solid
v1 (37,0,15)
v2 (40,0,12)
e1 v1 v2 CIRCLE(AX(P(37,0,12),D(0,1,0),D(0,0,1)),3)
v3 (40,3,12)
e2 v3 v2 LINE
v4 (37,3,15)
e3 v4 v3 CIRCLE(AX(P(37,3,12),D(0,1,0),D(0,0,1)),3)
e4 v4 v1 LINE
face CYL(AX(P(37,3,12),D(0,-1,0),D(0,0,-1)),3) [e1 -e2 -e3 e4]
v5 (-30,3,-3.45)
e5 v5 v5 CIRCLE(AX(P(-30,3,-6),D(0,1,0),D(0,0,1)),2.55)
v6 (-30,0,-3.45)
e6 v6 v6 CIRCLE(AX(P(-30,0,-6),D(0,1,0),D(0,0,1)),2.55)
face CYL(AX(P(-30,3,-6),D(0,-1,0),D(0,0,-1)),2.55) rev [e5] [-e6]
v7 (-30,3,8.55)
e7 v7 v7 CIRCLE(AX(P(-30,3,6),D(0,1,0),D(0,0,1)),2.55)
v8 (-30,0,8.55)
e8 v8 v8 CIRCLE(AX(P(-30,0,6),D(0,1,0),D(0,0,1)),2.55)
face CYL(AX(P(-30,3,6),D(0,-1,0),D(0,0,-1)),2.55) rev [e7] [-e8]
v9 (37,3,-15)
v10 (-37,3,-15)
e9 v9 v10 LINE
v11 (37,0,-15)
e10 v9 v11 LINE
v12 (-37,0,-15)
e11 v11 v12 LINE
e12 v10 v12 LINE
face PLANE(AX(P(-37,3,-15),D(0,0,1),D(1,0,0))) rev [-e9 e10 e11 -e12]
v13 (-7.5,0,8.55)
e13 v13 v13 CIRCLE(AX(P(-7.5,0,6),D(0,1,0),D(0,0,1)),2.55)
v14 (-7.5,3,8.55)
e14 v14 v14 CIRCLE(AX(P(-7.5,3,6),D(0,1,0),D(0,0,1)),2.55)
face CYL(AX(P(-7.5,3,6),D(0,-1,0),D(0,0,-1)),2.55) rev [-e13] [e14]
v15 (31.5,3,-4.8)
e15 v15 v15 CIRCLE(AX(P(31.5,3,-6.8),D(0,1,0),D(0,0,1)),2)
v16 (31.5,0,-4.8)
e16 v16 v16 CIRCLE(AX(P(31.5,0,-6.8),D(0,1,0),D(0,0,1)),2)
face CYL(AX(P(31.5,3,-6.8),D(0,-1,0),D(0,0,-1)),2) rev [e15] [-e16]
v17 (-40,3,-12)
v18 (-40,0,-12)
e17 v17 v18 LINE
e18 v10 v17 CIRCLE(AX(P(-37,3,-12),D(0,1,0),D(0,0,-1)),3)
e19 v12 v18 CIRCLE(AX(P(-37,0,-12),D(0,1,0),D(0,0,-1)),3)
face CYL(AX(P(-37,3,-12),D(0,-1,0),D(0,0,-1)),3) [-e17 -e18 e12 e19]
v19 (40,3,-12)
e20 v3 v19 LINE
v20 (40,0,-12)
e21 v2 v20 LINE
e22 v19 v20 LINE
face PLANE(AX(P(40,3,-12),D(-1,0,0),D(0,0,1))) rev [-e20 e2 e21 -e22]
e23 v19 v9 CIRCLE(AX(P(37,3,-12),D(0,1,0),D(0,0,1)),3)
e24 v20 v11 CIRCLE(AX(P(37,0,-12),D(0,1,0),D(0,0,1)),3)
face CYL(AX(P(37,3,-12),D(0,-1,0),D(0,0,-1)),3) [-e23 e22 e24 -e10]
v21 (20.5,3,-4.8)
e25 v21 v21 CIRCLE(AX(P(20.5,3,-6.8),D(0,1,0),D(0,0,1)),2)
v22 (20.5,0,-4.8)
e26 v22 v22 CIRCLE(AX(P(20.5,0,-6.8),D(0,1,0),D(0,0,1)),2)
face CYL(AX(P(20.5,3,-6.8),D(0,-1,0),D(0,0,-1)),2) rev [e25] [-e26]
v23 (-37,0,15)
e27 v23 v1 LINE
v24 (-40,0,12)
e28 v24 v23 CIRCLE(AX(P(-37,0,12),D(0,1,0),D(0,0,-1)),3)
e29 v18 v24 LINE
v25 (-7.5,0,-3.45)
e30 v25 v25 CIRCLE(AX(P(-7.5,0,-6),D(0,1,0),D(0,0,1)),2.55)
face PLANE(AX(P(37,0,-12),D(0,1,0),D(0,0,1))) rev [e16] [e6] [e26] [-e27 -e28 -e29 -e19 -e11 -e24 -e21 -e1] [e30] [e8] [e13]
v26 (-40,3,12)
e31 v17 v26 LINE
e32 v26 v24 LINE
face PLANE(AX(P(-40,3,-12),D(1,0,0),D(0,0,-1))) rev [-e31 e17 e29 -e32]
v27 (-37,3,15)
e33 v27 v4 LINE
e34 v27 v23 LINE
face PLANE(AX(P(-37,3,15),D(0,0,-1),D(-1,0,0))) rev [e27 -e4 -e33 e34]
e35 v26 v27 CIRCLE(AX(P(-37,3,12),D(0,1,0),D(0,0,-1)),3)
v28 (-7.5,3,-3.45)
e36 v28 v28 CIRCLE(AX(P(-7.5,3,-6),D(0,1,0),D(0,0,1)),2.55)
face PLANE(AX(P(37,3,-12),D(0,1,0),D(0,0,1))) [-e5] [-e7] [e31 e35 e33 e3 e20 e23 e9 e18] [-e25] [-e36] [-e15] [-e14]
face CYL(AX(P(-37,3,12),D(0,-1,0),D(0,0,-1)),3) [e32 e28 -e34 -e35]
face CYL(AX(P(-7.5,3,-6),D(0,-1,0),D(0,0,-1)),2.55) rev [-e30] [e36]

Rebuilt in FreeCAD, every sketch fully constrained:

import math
import FreeCAD as App
import Part
import Sketcher

V = App.Vector
Q = App.Units.Quantity

doc = App.newDocument("Part")
body = doc.addObject("PartDesign::Body", "Body")

# Sketch on XZ plane
sketch1 = body.newObject("Sketcher::SketchObject", "Sketch")
sketch1.AttachmentSupport = (doc.getObject("XZ_Plane"), [""])
sketch1.MapMode = "FlatFace"
sketch1.addGeometry([
    Part.LineSegment(V(37, -15, 0), V(-37, -15, 0)),  # 0
    Part.ArcOfCircle(Part.Circle(V(-37, -12, 0), V(0, 0, 1), 3), math.radians(180), math.radians(270)),  # 1
    Part.LineSegment(V(-40, -12, 0), V(-40, 12, 0)),  # 2
    Part.ArcOfCircle(Part.Circle(V(-37, 12, 0), V(0, 0, 1), 3), math.radians(90), math.radians(180)),  # 3
    Part.LineSegment(V(-37, 15, 0), V(37, 15, 0)),  # 4
    Part.ArcOfCircle(Part.Circle(V(37, 12, 0), V(0, 0, 1), 3), math.radians(0), math.radians(90)),  # 5
    Part.LineSegment(V(40, 12, 0), V(40, -12, 0)),  # 6
    Part.ArcOfCircle(Part.Circle(V(37, -12, 0), V(0, 0, 1), 3), math.radians(-90), math.radians(0)),  # 7
    Part.Circle(V(-7.5, 6, 0), V(0, 0, 1), 2.5),  # 8
    Part.Circle(V(-30, 6, 0), V(0, 0, 1), 2.5),  # 9
    Part.Circle(V(31.5, -6.8, 0), V(0, 0, 1), 2),  # 10
    Part.Circle(V(20.5, -6.8, 0), V(0, 0, 1), 2),  # 11
    Part.Circle(V(-7.5, -6, 0), V(0, 0, 1), 2.5),  # 12
    Part.Circle(V(-30, -6, 0), V(0, 0, 1), 2.5),  # 13
], False)
sketch1.addConstraint([
    Sketcher.Constraint("Tangent", 0, 2, 1, 2),
    Sketcher.Constraint("Tangent", 1, 1, 2, 1),
    Sketcher.Constraint("Tangent", 2, 2, 3, 2),
    Sketcher.Constraint("Tangent", 3, 1, 4, 1),
    Sketcher.Constraint("Tangent", 4, 2, 5, 2),
    Sketcher.Constraint("Tangent", 5, 1, 6, 1),
    Sketcher.Constraint("Tangent", 6, 2, 7, 2),
    Sketcher.Constraint("Tangent", 7, 1, 0, 1),
    Sketcher.Constraint("Horizontal", 0),
    Sketcher.Constraint("Vertical", 2),
    Sketcher.Constraint("Horizontal", 4),
    Sketcher.Constraint("Vertical", 6),
    Sketcher.Constraint("Equal", 1, 3),
    Sketcher.Constraint("Equal", 3, 5),
    Sketcher.Constraint("Equal", 5, 7),
    Sketcher.Constraint("Equal", 8, 9),
    Sketcher.Constraint("Equal", 10, 11),
    Sketcher.Constraint("Equal", 9, 12),
    Sketcher.Constraint("Equal", 12, 13),
    Sketcher.Constraint("Symmetric", 1, 3, 5, 3, -1, 1),
    Sketcher.Constraint("Symmetric", 8, 3, 12, 3, -1),
    Sketcher.Constraint("Symmetric", 9, 3, 13, 3, -1),
    Sketcher.Constraint("Horizontal", 8, 3, 9, 3),
    Sketcher.Constraint("Horizontal", 10, 3, 11, 3),
    Sketcher.Constraint("Diameter", 10, Q("4 mm")),
    Sketcher.Constraint("Radius", 1, Q("3 mm")),
    Sketcher.Constraint("Diameter", 8, Q("5.1 mm")),
    Sketcher.Constraint("DistanceX", 0, 2, 0, 1, Q("74 mm")),
    Sketcher.Constraint("DistanceY", 2, 1, 2, 2, Q("24 mm")),
    Sketcher.Constraint("DistanceY", -1, 1, 8, 3, Q("6 mm")),
    Sketcher.Constraint("DistanceX", 9, 3, -1, 1, Q("30 mm")),
    Sketcher.Constraint("DistanceX", 8, 3, 10, 3, Q("39 mm")),
    Sketcher.Constraint("DistanceX", 11, 3, 10, 3, Q("11 mm")),
    Sketcher.Constraint("DistanceX", 8, 3, -1, 1, Q("7.5 mm")),
    Sketcher.Constraint("DistanceY", 10, 3, -1, 1, Q("6.8 mm")),
])
pad1 = body.newObject("PartDesign::Pad", "Pad")
pad1.Profile = sketch1
pad1.Length = 3
pad1.Reversed = True

doc.recompute()
